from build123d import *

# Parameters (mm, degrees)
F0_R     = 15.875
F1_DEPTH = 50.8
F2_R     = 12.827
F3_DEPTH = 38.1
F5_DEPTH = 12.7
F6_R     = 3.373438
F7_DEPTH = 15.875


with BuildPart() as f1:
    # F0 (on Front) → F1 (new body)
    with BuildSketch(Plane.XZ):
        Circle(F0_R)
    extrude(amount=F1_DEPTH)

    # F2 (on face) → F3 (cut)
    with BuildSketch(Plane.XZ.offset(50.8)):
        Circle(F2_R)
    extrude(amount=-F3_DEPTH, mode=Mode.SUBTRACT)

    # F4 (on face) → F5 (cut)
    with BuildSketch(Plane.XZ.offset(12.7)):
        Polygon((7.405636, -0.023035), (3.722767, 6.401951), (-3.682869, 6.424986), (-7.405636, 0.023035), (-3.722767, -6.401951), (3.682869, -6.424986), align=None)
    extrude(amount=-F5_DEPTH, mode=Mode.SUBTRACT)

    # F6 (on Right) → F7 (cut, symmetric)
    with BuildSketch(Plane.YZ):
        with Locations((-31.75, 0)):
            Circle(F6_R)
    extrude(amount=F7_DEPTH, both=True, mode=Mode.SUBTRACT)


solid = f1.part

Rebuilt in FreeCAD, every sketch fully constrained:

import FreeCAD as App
import Part
import Sketcher
Q = App.Units.Quantity


def add_polygon(sketch, points):
    """Adds a closed chain of lines whose ends are joined by coincident constraints."""
    first, n = sketch.GeometryCount, len(points)
    for a, b in zip(points, points[1:] + points[:1]):
        sketch.addGeometry(Part.LineSegment(App.Vector(*a, 0), App.Vector(*b, 0)), False)
    for i in range(n):
        sketch.addConstraint(Sketcher.Constraint("Coincident", first + i, 2, first + (i + 1) % n, 1))

doc = App.newDocument("Part")
body = doc.addObject("PartDesign::Body", "Body")

sketch1 = body.newObject("Sketcher::SketchObject", "Sketch")
sketch1.AttachmentSupport = (doc.getObject("XZ_Plane"), [""])
sketch1.MapMode = "FlatFace"
sketch1.addGeometry(Part.Circle(App.Vector(0, 0, 0), App.Vector(0, 0, 1), 15.875), False)
sketch1.addConstraint([
    Sketcher.Constraint("Coincident", 0, 3, -1, 1),
    Sketcher.Constraint("Diameter", 0, Q("1.25 in")),
])
pad1 = body.newObject("PartDesign::Pad", "Pad")
pad1.Profile = sketch1
pad1.Length = Q("2 in")

sketch2 = body.newObject("Sketcher::SketchObject", "Sketch001")
sketch2.AttachmentSupport = (doc.getObject("XZ_Plane"), [""])
sketch2.MapMode = "FlatFace"
sketch2.AttachmentOffset = App.Placement(App.Vector(0, 0, 2 * 25.4), App.Rotation())
sketch2.addGeometry(Part.Circle(App.Vector(0, 0, 0), App.Vector(0, 0, 1), 12.827), False)
sketch2.addConstraint([
    Sketcher.Constraint("Coincident", 0, 3, -1, 1),
    Sketcher.Constraint("Diameter", 0, Q("1.01 in")),
])
pocket1 = body.newObject("PartDesign::Pocket", "Pocket")
pocket1.Profile = sketch2
pocket1.Length = Q("1.5 in")

sketch3 = body.newObject("Sketcher::SketchObject", "Sketch002")
sketch3.AttachmentSupport = (doc.getObject("XZ_Plane"), [""])
sketch3.MapMode = "FlatFace"
sketch3.AttachmentOffset = App.Placement(App.Vector(0, 0, 0.5 * 25.4), App.Rotation())
add_polygon(sketch3, [(7.405636, -0.023035), (3.722767, 6.401951), (-3.682869, 6.424986), (-7.405636, 0.023035), (-3.722767, -6.401951), (3.682869, -6.424986)])
sketch3.addConstraint([
    Sketcher.Constraint("Symmetric", 0, 2, 3, 2, -1, 1),
    Sketcher.Constraint("Symmetric", 1, 2, 4, 2, -1, 1),
    Sketcher.Constraint("Symmetric", 2, 2, 5, 2, -1, 1),
    Sketcher.Constraint("Equal", 0, 1),
    Sketcher.Constraint("Equal", 1, 2),
    Sketcher.Constraint("Distance", 0, Q("7.405671 mm")),
    Sketcher.Constraint("DistanceY", -1, 1, 0, 2, Q("6.401951 mm")),
    Sketcher.Constraint("DistanceX", 1, 2, -1, 1, Q("3.682869 mm")),
    Sketcher.Constraint("DistanceY", 2, 2, 1, 2, Q("6.401951 mm")),
])
pocket2 = body.newObject("PartDesign::Pocket", "Pocket001")
pocket2.Profile = sketch3
pocket2.Length = Q("0.5 in")

sketch4 = body.newObject("Sketcher::SketchObject", "Sketch003")
sketch4.AttachmentSupport = (doc.getObject("YZ_Plane"), [""])
sketch4.MapMode = "FlatFace"
sketch4.addGeometry(Part.Circle(App.Vector(-31.75, 0, 0), App.Vector(0, 0, 1), 3.373438), False)
sketch4.addConstraint([
    Sketcher.Constraint("PointOnObject", 0, 3, -1),
    Sketcher.Constraint("Diameter", 0, Q("0.265625 in")),
    Sketcher.Constraint("DistanceX", 0, 3, -1, 1, Q("1.25 in")),
])
pocket3 = body.newObject("PartDesign::Pocket", "Pocket002")
pocket3.Profile = sketch4
pocket3.Length = Q("1.25 in")
pocket3.Midplane = True

doc.recompute()
